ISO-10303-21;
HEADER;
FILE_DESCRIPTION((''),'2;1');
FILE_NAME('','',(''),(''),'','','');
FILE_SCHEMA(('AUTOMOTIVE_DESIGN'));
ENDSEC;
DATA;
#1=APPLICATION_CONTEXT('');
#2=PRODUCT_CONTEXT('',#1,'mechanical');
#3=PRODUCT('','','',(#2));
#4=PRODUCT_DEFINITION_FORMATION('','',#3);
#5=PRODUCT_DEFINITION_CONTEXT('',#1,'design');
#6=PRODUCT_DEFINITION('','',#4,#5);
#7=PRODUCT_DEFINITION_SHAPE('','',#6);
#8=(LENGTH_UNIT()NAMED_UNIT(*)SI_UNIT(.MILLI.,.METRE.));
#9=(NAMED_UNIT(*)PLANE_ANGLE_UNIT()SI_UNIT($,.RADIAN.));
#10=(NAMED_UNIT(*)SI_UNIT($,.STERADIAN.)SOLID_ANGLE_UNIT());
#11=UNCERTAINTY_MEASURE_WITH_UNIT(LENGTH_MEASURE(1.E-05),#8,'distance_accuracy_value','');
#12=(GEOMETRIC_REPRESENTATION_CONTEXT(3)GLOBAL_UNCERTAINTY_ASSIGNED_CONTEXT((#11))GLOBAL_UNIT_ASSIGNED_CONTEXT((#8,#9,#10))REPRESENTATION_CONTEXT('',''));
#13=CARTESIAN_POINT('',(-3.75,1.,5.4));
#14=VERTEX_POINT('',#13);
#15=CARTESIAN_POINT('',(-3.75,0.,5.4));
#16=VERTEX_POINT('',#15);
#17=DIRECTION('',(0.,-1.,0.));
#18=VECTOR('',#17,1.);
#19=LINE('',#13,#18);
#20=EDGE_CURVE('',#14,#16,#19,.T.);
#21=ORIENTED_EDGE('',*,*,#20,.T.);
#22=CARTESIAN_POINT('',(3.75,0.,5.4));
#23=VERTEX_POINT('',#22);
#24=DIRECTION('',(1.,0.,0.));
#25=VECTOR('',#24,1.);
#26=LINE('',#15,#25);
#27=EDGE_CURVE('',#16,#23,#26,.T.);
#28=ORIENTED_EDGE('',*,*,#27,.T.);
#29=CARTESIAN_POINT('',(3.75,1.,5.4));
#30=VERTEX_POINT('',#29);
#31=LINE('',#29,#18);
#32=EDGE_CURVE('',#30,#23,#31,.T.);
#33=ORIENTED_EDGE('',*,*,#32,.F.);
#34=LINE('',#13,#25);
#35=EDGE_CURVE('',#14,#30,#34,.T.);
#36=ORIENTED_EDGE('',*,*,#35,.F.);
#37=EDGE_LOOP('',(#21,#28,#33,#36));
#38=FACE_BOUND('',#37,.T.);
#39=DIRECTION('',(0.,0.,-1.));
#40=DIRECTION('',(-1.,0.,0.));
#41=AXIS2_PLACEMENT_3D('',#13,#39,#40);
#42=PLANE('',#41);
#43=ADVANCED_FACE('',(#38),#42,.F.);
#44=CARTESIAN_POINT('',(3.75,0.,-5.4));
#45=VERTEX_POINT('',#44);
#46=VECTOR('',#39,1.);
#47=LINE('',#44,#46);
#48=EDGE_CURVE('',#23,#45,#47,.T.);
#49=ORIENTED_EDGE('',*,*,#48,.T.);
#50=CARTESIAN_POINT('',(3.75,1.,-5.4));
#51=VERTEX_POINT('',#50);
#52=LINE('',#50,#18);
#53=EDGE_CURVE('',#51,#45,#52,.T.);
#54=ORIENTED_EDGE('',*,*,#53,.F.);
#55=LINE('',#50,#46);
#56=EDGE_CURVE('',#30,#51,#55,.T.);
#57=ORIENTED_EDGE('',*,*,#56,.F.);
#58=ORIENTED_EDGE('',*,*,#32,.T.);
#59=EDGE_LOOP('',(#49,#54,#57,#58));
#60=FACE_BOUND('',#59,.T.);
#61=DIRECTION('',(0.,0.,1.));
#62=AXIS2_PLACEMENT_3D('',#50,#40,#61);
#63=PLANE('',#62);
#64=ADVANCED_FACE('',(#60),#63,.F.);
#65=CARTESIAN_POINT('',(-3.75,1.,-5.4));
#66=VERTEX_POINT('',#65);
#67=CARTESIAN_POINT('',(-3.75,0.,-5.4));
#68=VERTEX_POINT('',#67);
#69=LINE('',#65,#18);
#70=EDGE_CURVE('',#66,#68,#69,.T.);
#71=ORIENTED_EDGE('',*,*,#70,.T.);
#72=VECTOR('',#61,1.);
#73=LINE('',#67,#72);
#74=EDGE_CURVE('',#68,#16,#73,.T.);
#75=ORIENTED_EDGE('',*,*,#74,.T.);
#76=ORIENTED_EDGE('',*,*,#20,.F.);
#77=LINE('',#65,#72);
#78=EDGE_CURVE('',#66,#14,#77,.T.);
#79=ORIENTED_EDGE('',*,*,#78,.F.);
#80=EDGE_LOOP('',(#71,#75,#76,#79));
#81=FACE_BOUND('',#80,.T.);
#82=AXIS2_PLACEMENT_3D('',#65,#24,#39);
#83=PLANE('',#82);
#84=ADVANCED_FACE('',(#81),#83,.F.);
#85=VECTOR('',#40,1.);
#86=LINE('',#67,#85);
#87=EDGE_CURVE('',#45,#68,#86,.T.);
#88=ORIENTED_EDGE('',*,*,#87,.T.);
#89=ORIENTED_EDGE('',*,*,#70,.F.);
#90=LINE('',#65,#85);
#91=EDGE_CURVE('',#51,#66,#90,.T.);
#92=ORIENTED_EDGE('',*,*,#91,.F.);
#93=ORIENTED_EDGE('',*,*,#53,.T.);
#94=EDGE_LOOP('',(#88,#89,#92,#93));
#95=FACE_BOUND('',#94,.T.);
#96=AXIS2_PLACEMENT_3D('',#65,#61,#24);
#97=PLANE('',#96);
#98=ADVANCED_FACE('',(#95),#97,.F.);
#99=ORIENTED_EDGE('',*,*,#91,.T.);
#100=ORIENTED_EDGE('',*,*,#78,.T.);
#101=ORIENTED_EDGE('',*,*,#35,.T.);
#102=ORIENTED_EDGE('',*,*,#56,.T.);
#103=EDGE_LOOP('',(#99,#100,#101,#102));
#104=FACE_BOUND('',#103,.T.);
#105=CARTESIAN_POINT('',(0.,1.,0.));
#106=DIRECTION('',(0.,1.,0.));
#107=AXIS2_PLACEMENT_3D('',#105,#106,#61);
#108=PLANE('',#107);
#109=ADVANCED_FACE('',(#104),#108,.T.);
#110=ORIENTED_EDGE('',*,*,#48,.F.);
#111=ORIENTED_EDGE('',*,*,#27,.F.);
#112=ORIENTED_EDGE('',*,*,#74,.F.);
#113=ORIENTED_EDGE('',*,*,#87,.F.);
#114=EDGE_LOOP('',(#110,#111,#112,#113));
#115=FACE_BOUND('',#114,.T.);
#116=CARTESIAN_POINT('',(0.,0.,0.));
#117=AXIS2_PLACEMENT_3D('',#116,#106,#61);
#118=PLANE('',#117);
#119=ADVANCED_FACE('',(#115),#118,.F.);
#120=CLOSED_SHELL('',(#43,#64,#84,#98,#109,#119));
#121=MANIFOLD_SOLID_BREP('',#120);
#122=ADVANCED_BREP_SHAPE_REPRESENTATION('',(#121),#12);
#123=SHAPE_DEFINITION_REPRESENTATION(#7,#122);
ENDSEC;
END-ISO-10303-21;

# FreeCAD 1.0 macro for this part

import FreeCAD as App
import Part
import Sketcher

doc = App.newDocument("Part")
params = doc.addObject("Spreadsheet::Sheet", "Params")
for row, (alias, value) in enumerate([
    ("sketch1_width", "7.5 mm"),
    ("sketch1_height", "10.8 mm"),
    ("pad1_length", "1 mm"),
], start=1):
    params.set(f"A{row}", alias)
    params.set(f"B{row}", "=" + value)
    params.setAlias(f"B{row}", alias)

body = doc.addObject("PartDesign::Body", "Body")

# Sketch on XZ plane
sketch1 = body.newObject("Sketcher::SketchObject", "Sketch")
sketch1.AttachmentSupport = (doc.getObject("XZ_Plane"), [""])
sketch1.MapMode = "FlatFace"
sketch1.addGeometry(Part.LineSegment(App.Vector(-4, -5, 0), App.Vector(-4, 5, 0)), False)
sketch1.addGeometry(Part.LineSegment(App.Vector(-4, 5, 0), App.Vector(4, 5, 0)), False)
sketch1.addGeometry(Part.LineSegment(App.Vector(4, 5, 0), App.Vector(4, -5, 0)), False)
sketch1.addGeometry(Part.LineSegment(App.Vector(4, -5, 0), App.Vector(-4, -5, 0)), False)
sketch1.addConstraint(Sketcher.Constraint("Coincident", 0, 2, 1, 1))
sketch1.addConstraint(Sketcher.Constraint("Coincident", 1, 2, 2, 1))
sketch1.addConstraint(Sketcher.Constraint("Coincident", 2, 2, 3, 1))
sketch1.addConstraint(Sketcher.Constraint("Coincident", 3, 2, 0, 1))
sketch1.addConstraint(Sketcher.Constraint("Vertical", 0))
sketch1.addConstraint(Sketcher.Constraint("Horizontal", 1))
sketch1.addConstraint(Sketcher.Constraint("Vertical", 2))
sketch1.addConstraint(Sketcher.Constraint("Horizontal", 3))
sketch1.addConstraint(Sketcher.Constraint("Symmetric", 0, 2, 2, 2, -1, 1))
sketch1.addConstraint(Sketcher.Constraint("DistanceX", 1, 1, 1, 2, 7.5))
sketch1.addConstraint(Sketcher.Constraint("DistanceY", 0, 1, 0, 2, 10.8))
sketch1.setExpression("Constraints[9]", "Params.sketch1_width")
sketch1.setExpression("Constraints[10]", "Params.sketch1_height")
pad1 = body.newObject("PartDesign::Pad", "Pad")
pad1.Profile = sketch1
pad1.setExpression("Length", "Params.pad1_length")
pad1.Reversed = True

doc.recompute()
